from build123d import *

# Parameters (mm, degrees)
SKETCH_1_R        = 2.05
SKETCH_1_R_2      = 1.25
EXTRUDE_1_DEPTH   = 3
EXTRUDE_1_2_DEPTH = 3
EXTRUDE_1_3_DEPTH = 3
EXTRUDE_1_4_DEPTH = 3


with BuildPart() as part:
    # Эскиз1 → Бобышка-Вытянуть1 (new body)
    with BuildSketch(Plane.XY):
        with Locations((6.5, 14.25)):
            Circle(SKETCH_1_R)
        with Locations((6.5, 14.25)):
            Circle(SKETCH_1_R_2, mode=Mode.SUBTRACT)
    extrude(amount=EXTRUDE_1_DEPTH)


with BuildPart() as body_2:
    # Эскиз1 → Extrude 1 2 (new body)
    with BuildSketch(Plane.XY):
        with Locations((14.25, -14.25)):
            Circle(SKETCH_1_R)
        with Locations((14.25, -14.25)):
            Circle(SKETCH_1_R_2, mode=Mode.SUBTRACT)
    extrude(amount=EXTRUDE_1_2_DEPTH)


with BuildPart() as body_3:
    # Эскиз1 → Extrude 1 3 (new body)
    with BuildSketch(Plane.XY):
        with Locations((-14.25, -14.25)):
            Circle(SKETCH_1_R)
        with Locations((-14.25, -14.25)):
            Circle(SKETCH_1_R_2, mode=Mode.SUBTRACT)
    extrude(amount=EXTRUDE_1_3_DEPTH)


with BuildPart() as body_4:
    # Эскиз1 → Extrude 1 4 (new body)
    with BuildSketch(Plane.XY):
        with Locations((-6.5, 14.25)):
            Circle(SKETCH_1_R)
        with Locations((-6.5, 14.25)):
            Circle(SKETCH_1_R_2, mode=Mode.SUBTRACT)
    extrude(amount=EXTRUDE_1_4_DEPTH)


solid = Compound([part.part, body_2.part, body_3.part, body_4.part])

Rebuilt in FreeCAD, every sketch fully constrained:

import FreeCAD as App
import Part
import Sketcher

doc = App.newDocument("Part")
body = doc.addObject("PartDesign::Body", "Body")

sketch1 = doc.addObject("Sketcher::SketchObject", "Sketch")
body.addObject(sketch1)
sketch1.AttachmentSupport = (doc.XY_Plane, [""])
sketch1.MapMode = "FlatFace"
sketch1.addGeometry(Part.Circle(App.Vector(6.5, 14.2, 0), App.Vector(0, 0, 1), 2), False)
sketch1.addGeometry(Part.Circle(App.Vector(6.5, 14.2, 0), App.Vector(0, 0, 1), 1.2), False)
sketch1.addConstraint(Sketcher.Constraint("Coincident", 1, 3, 0, 3))
sketch1.addConstraint(Sketcher.Constraint("Diameter", 0, 4.1))
sketch1.addConstraint(Sketcher.Constraint("Diameter", 1, 2.5))
sketch1.addConstraint(Sketcher.Constraint("DistanceX", -1, 1, 0, 3, 6.5))
sketch1.addConstraint(Sketcher.Constraint("DistanceY", -1, 1, 0, 3, 14.25))
pad1 = doc.addObject("PartDesign::Pad", "Pad")
body.addObject(pad1)
pad1.Profile = sketch1
pad1.Length = 3
body2 = doc.addObject("PartDesign::Body", "Body001")

sketch2 = doc.addObject("Sketcher::SketchObject", "Sketch001")
body2.addObject(sketch2)
sketch2.AttachmentSupport = (doc.getObject("XY_Plane001"), [""])
sketch2.MapMode = "FlatFace"
sketch2.addGeometry(Part.Circle(App.Vector(14.2, -14.2, 0), App.Vector(0, 0, 1), 2), False)
sketch2.addGeometry(Part.Circle(App.Vector(14.2, -14.2, 0), App.Vector(0, 0, 1), 1.2), False)
sketch2.addConstraint(Sketcher.Constraint("Coincident", 1, 3, 0, 3))
sketch2.addConstraint(Sketcher.Constraint("Diameter", 0, 4.1))
sketch2.addConstraint(Sketcher.Constraint("Diameter", 1, 2.5))
sketch2.addConstraint(Sketcher.Constraint("DistanceX", -1, 1, 0, 3, 14.25))
sketch2.addConstraint(Sketcher.Constraint("DistanceY", 0, 3, -1, 1, 14.25))
pad2 = doc.addObject("PartDesign::Pad", "Pad001")
body2.addObject(pad2)
pad2.Profile = sketch2
pad2.Length = 3
body3 = doc.addObject("PartDesign::Body", "Body002")

sketch3 = doc.addObject("Sketcher::SketchObject", "Sketch002")
body3.addObject(sketch3)
sketch3.AttachmentSupport = (doc.getObject("XY_Plane002"), [""])
sketch3.MapMode = "FlatFace"
sketch3.addGeometry(Part.Circle(App.Vector(-14.2, -14.2, 0), App.Vector(0, 0, 1), 2), False)
sketch3.addGeometry(Part.Circle(App.Vector(-14.2, -14.2, 0), App.Vector(0, 0, 1), 1.2), False)
sketch3.addConstraint(Sketcher.Constraint("Coincident", 1, 3, 0, 3))
sketch3.addConstraint(Sketcher.Constraint("Diameter", 0, 4.1))
sketch3.addConstraint(Sketcher.Constraint("Diameter", 1, 2.5))
sketch3.addConstraint(Sketcher.Constraint("DistanceX", 0, 3, -1, 1, 14.25))
sketch3.addConstraint(Sketcher.Constraint("DistanceY", 0, 3, -1, 1, 14.25))
pad3 = doc.addObject("PartDesign::Pad", "Pad002")
body3.addObject(pad3)
pad3.Profile = sketch3
pad3.Length = 3
body4 = doc.addObject("PartDesign::Body", "Body003")

sketch4 = doc.addObject("Sketcher::SketchObject", "Sketch003")
body4.addObject(sketch4)
sketch4.AttachmentSupport = (doc.getObject("XY_Plane003"), [""])
sketch4.MapMode = "FlatFace"
sketch4.addGeometry(Part.Circle(App.Vector(-6.5, 14.2, 0), App.Vector(0, 0, 1), 2), False)
sketch4.addGeometry(Part.Circle(App.Vector(-6.5, 14.2, 0), App.Vector(0, 0, 1), 1.2), False)
sketch4.addConstraint(Sketcher.Constraint("Coincident", 1, 3, 0, 3))
sketch4.addConstraint(Sketcher.Constraint("Diameter", 0, 4.1))
sketch4.addConstraint(Sketcher.Constraint("Diameter", 1, 2.5))
sketch4.addConstraint(Sketcher.Constraint("DistanceX", 0, 3, -1, 1, 6.5))
sketch4.addConstraint(Sketcher.Constraint("DistanceY", -1, 1, 0, 3, 14.25))
pad4 = doc.addObject("PartDesign::Pad", "Pad003")
body4.addObject(pad4)
pad4.Profile = sketch4
pad4.Length = 3

doc.recompute()
